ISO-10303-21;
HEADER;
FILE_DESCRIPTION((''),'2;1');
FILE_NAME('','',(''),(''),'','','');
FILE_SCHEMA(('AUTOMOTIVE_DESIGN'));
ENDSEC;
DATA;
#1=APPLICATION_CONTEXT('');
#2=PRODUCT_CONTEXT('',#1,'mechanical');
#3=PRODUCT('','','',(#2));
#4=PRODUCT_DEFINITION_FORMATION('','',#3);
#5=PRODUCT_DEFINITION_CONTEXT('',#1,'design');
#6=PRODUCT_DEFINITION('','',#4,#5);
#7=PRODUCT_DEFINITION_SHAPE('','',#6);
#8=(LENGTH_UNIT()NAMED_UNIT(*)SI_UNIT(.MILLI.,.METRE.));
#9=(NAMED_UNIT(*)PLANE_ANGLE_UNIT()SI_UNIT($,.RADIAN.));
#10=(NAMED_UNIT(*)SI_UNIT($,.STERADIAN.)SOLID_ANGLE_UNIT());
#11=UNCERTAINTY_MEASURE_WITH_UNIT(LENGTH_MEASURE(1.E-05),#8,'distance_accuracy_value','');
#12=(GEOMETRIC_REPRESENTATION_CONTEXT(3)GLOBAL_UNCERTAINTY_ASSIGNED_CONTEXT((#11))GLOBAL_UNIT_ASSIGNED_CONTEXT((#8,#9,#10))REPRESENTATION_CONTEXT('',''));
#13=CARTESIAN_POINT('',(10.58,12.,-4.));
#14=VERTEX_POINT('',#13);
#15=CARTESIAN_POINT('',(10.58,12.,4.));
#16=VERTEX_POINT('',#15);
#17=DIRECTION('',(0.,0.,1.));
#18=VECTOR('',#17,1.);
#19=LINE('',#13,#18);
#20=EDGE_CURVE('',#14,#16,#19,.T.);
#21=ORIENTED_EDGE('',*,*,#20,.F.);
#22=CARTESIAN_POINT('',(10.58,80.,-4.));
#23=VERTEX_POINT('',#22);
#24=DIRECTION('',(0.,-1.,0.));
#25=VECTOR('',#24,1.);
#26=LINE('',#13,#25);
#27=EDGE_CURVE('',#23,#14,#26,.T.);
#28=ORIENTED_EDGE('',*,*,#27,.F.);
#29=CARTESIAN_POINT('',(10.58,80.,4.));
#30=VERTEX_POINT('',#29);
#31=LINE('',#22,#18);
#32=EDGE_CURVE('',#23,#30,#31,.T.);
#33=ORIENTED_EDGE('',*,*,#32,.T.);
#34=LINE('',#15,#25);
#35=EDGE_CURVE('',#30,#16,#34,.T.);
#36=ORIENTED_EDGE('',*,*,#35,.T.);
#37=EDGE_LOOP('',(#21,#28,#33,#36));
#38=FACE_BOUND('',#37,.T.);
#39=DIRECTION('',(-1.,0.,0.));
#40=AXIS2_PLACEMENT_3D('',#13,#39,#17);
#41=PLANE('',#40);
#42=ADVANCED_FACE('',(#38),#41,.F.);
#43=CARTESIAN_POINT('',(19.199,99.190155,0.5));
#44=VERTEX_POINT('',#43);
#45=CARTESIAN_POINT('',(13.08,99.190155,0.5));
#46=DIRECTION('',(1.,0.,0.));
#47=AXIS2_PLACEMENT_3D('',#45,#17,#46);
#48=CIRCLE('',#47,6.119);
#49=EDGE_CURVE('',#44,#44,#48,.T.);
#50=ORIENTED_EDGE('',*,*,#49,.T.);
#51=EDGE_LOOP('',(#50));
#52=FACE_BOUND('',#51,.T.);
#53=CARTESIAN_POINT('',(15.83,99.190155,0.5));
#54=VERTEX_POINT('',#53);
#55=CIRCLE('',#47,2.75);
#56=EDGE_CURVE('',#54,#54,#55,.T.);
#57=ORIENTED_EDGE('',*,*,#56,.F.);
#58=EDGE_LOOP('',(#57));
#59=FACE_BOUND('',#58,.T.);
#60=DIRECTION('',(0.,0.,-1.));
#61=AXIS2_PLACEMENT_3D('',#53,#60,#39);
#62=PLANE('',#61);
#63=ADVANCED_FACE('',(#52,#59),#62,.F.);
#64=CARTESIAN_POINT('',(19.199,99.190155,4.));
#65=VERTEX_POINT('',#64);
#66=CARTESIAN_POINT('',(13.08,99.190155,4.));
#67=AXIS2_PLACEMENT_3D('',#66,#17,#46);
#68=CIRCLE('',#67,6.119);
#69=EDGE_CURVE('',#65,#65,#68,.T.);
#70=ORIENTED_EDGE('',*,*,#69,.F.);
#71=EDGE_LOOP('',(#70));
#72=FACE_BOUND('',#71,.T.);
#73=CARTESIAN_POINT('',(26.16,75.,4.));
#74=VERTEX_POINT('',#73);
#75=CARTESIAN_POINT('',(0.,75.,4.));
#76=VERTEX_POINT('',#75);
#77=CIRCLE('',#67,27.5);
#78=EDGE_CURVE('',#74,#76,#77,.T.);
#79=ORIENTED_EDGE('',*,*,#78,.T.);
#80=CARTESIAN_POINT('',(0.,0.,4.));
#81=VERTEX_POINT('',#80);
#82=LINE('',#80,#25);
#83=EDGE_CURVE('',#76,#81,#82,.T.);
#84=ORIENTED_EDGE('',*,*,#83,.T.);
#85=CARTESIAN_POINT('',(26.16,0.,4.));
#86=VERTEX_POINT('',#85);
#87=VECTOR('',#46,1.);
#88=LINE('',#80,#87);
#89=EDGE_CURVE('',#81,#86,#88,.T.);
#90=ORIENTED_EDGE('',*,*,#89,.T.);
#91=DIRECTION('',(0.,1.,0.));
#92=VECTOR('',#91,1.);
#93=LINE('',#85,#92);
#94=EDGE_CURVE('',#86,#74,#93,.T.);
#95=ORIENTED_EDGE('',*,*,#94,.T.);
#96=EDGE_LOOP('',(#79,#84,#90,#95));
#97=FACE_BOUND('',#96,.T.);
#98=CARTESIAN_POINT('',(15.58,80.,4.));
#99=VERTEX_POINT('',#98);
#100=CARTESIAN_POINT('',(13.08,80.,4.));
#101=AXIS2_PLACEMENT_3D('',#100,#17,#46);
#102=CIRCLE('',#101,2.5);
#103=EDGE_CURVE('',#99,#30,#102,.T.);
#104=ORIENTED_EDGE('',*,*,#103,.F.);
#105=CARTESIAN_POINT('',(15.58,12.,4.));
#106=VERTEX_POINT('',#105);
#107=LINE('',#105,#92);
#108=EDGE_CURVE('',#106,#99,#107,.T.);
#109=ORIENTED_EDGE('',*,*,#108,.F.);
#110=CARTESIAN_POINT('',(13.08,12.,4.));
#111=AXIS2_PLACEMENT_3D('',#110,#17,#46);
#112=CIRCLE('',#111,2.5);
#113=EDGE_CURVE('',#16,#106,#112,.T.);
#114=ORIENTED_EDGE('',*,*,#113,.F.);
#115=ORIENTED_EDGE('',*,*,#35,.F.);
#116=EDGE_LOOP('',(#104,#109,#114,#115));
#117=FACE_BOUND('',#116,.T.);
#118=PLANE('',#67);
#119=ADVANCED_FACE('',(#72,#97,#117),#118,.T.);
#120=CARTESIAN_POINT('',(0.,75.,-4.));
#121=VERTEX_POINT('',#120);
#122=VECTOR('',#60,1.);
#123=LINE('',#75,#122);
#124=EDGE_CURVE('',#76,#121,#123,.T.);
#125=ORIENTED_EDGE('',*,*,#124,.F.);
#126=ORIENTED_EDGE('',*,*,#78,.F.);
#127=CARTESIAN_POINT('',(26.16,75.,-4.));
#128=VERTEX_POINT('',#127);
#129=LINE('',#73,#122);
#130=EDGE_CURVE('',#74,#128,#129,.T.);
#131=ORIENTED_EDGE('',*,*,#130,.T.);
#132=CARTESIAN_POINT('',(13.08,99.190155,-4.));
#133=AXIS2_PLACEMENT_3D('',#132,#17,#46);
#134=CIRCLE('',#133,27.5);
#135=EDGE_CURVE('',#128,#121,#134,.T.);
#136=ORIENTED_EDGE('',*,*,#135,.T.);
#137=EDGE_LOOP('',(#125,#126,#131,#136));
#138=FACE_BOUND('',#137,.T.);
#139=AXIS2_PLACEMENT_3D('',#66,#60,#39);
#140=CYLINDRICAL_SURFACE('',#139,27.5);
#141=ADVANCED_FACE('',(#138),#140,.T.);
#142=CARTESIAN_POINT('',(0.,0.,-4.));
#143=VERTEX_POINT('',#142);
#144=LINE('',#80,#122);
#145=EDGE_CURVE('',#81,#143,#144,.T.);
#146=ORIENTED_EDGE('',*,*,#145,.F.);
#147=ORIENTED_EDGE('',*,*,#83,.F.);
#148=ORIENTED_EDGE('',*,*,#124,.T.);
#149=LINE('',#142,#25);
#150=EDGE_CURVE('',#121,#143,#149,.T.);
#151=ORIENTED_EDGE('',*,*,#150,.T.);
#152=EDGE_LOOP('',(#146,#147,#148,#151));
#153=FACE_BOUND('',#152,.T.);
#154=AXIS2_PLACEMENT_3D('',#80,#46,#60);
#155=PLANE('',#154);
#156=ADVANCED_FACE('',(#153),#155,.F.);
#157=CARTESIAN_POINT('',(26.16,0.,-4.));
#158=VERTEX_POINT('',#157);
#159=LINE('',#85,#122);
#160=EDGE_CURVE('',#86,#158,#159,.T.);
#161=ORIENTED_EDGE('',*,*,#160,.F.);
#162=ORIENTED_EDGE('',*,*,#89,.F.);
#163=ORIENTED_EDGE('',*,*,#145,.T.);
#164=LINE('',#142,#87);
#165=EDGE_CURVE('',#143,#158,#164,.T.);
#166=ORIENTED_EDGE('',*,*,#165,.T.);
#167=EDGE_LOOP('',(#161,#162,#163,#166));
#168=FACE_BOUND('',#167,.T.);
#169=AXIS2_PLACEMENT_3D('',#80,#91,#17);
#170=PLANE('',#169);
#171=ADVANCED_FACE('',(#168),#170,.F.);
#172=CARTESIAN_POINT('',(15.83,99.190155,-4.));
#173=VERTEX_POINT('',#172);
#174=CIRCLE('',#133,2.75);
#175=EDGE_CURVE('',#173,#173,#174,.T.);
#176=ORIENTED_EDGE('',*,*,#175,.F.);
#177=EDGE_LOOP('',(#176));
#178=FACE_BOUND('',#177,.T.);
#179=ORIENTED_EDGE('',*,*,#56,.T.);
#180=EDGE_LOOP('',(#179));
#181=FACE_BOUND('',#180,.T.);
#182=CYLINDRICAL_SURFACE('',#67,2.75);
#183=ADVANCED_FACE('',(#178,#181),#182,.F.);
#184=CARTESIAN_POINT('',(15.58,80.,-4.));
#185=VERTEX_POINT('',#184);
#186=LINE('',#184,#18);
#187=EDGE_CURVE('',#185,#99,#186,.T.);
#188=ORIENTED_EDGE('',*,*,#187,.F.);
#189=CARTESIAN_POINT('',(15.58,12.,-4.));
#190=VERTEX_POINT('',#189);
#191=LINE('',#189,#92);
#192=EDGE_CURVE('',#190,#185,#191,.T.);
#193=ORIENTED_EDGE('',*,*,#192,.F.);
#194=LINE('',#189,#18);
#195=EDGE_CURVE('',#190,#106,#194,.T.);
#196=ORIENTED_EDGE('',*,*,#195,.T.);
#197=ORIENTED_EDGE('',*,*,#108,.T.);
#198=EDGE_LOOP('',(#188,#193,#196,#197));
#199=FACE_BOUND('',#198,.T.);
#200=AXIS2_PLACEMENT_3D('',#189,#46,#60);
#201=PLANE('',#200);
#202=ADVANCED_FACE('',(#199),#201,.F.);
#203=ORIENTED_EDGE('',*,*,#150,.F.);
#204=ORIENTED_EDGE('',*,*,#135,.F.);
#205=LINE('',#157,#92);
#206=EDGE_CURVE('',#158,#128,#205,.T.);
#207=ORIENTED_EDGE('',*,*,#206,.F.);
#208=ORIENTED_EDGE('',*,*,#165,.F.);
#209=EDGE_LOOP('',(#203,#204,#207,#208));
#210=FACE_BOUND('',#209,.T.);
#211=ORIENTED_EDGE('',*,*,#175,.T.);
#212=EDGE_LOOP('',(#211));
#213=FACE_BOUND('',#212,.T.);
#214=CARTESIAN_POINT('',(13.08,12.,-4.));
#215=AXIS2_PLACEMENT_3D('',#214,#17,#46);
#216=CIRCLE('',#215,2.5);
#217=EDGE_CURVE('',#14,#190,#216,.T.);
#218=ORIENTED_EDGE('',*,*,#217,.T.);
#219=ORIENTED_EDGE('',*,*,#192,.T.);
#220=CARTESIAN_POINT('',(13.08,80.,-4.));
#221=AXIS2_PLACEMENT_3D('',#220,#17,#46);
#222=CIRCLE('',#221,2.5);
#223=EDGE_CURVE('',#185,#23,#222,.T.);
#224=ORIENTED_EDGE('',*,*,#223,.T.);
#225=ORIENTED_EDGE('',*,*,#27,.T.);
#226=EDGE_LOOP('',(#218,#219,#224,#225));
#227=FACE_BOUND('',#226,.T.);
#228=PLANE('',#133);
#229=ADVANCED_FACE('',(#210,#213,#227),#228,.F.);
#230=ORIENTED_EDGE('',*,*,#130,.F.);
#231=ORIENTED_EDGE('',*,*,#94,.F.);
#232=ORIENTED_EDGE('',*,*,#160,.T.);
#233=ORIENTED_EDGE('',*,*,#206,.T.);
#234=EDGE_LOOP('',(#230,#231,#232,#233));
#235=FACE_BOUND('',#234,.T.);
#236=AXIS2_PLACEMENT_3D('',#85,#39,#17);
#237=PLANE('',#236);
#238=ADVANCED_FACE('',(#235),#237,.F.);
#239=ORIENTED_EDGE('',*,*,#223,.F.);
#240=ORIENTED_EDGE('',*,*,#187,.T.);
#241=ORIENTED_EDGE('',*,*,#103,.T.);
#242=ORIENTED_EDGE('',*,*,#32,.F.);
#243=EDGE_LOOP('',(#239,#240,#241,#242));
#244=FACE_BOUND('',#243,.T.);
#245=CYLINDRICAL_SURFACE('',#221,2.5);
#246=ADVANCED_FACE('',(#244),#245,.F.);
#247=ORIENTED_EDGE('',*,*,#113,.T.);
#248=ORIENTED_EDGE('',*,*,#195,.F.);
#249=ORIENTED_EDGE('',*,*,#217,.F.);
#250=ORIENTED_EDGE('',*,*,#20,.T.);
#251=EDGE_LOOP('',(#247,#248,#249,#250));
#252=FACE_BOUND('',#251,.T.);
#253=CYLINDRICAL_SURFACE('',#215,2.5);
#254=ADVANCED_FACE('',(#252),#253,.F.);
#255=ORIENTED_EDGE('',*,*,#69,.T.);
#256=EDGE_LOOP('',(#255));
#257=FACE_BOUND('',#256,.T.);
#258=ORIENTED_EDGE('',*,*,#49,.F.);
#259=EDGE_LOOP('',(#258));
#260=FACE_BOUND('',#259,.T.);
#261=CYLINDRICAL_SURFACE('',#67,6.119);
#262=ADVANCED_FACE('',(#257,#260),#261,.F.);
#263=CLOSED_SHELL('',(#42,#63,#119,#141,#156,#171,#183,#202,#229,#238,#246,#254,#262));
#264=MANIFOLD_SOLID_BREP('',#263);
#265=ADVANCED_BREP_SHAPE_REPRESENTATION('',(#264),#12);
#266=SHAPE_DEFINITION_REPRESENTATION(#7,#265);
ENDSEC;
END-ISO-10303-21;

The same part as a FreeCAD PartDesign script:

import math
import FreeCAD as App
import Part
import Sketcher
Q = App.Units.Quantity

doc = App.newDocument("Part")
body = doc.addObject("PartDesign::Body", "Body")

# Sketch on XY plane
sketch1 = body.newObject("Sketcher::SketchObject", "Sketch")
sketch1.AttachmentSupport = (doc.getObject("XY_Plane"), [""])
sketch1.MapMode = "FlatFace"
sketch1.addGeometry(Part.LineSegment(App.Vector(0, 75, 0), App.Vector(0, 0, 0)), False)
sketch1.addGeometry(Part.LineSegment(App.Vector(0, 0, 0), App.Vector(26, 0, 0)), False)
sketch1.addGeometry(Part.LineSegment(App.Vector(26, 0, 0), App.Vector(26, 75, 0)), False)
sketch1.addGeometry(Part.ArcOfCircle(Part.Circle(App.Vector(13, 99, 0), App.Vector(0, 0, 1), 28), math.radians(-62), math.radians(242)), False)
sketch1.addConstraint(Sketcher.Constraint("Coincident", 0, 2, 1, 1))
sketch1.addConstraint(Sketcher.Constraint("Coincident", 1, 2, 2, 1))
sketch1.addConstraint(Sketcher.Constraint("Coincident", 2, 2, 3, 1))
sketch1.addConstraint(Sketcher.Constraint("Coincident", 3, 2, 0, 1))
sketch1.addConstraint(Sketcher.Constraint("Vertical", 0))
sketch1.addConstraint(Sketcher.Constraint("Horizontal", 1))
sketch1.addConstraint(Sketcher.Constraint("Vertical", 2))
sketch1.addConstraint(Sketcher.Constraint("Coincident", 0, 2, -1, 1))
sketch1.addConstraint(Sketcher.Constraint("Horizontal", 2, 2, 3, 2))
sketch1.addConstraint(Sketcher.Constraint("Radius", 3, Q("27.5 mm")))
sketch1.addConstraint(Sketcher.Constraint("DistanceY", 0, 2, 0, 1, Q("75 mm")))
sketch1.addConstraint(Sketcher.Constraint("DistanceX", 1, 1, 1, 2, Q("26.16 mm")))
pad1 = body.newObject("PartDesign::Pad", "Pad")
pad1.Profile = sketch1
pad1.Length = 8
pad1.Midplane = True

# Sketch on XY plane
sketch2 = body.newObject("Sketcher::SketchObject", "Sketch001")
sketch2.AttachmentSupport = (doc.getObject("XY_Plane"), [""])
sketch2.MapMode = "FlatFace"
sketch2.AttachmentOffset = App.Placement(App.Vector(0, 0, 4), App.Rotation())
sketch2.addGeometry(Part.LineSegment(App.Vector(10.6, 80, 0), App.Vector(10.6, 12, 0)), False)
sketch2.addGeometry(Part.ArcOfCircle(Part.Circle(App.Vector(13.1, 12, 0), App.Vector(0, 0, 1), 2.5), math.radians(180), math.radians(360)), False)
sketch2.addGeometry(Part.LineSegment(App.Vector(15.6, 12, 0), App.Vector(15.6, 80, 0)), False)
sketch2.addGeometry(Part.ArcOfCircle(Part.Circle(App.Vector(13.1, 80, 0), App.Vector(0, 0, 1), 2.5), math.radians(0), math.radians(180)), False)
sketch2.addConstraint(Sketcher.Constraint("Tangent", 0, 2, 1, 1))
sketch2.addConstraint(Sketcher.Constraint("Tangent", 1, 2, 2, 1))
sketch2.addConstraint(Sketcher.Constraint("Tangent", 2, 2, 3, 1))
sketch2.addConstraint(Sketcher.Constraint("Tangent", 3, 2, 0, 1))
sketch2.addConstraint(Sketcher.Constraint("Vertical", 0))
sketch2.addConstraint(Sketcher.Constraint("Vertical", 2))
sketch2.addConstraint(Sketcher.Constraint("Radius", 1, Q("2.5 mm")))
sketch2.addConstraint(Sketcher.Constraint("DistanceY", 0, 2, 0, 1, Q("68 mm")))
sketch2.addConstraint(Sketcher.Constraint("DistanceY", -1, 1, 1, 3, Q("12 mm")))
sketch2.addConstraint(Sketcher.Constraint("DistanceX", -1, 1, 1, 3, Q("13.08 mm")))
pocket1 = body.newObject("PartDesign::Pocket", "Pocket")
pocket1.Profile = sketch2
pocket1.Type = "ThroughAll"

# Sketch on XY plane
sketch3 = body.newObject("Sketcher::SketchObject", "Sketch002")
sketch3.AttachmentSupport = (doc.getObject("XY_Plane"), [""])
sketch3.MapMode = "FlatFace"
sketch3.AttachmentOffset = App.Placement(App.Vector(0, 0, 4), App.Rotation())
sketch3.addGeometry(Part.Circle(App.Vector(13.1, 99.2, 0), App.Vector(0, 0, 1), 2.8), False)
sketch3.addConstraint(Sketcher.Constraint("Diameter", 0, Q("5.5 mm")))
sketch3.addConstraint(Sketcher.Constraint("DistanceX", -1, 1, 0, 3, Q("13.08 mm")))
sketch3.addConstraint(Sketcher.Constraint("DistanceY", -1, 1, 0, 3, Q("99.190155 mm")))
doc.recompute()
hole = body.newObject("PartDesign::Hole", "Hole")
hole.Profile = sketch3
hole.ThreadType = "None"
hole.Diameter = 5.5
hole.DepthType = "ThroughAll"
hole.HoleCutType = "Counterbore"
hole.HoleCutDiameter = 12.238
hole.HoleCutDepth = 3.5

doc.recompute()
